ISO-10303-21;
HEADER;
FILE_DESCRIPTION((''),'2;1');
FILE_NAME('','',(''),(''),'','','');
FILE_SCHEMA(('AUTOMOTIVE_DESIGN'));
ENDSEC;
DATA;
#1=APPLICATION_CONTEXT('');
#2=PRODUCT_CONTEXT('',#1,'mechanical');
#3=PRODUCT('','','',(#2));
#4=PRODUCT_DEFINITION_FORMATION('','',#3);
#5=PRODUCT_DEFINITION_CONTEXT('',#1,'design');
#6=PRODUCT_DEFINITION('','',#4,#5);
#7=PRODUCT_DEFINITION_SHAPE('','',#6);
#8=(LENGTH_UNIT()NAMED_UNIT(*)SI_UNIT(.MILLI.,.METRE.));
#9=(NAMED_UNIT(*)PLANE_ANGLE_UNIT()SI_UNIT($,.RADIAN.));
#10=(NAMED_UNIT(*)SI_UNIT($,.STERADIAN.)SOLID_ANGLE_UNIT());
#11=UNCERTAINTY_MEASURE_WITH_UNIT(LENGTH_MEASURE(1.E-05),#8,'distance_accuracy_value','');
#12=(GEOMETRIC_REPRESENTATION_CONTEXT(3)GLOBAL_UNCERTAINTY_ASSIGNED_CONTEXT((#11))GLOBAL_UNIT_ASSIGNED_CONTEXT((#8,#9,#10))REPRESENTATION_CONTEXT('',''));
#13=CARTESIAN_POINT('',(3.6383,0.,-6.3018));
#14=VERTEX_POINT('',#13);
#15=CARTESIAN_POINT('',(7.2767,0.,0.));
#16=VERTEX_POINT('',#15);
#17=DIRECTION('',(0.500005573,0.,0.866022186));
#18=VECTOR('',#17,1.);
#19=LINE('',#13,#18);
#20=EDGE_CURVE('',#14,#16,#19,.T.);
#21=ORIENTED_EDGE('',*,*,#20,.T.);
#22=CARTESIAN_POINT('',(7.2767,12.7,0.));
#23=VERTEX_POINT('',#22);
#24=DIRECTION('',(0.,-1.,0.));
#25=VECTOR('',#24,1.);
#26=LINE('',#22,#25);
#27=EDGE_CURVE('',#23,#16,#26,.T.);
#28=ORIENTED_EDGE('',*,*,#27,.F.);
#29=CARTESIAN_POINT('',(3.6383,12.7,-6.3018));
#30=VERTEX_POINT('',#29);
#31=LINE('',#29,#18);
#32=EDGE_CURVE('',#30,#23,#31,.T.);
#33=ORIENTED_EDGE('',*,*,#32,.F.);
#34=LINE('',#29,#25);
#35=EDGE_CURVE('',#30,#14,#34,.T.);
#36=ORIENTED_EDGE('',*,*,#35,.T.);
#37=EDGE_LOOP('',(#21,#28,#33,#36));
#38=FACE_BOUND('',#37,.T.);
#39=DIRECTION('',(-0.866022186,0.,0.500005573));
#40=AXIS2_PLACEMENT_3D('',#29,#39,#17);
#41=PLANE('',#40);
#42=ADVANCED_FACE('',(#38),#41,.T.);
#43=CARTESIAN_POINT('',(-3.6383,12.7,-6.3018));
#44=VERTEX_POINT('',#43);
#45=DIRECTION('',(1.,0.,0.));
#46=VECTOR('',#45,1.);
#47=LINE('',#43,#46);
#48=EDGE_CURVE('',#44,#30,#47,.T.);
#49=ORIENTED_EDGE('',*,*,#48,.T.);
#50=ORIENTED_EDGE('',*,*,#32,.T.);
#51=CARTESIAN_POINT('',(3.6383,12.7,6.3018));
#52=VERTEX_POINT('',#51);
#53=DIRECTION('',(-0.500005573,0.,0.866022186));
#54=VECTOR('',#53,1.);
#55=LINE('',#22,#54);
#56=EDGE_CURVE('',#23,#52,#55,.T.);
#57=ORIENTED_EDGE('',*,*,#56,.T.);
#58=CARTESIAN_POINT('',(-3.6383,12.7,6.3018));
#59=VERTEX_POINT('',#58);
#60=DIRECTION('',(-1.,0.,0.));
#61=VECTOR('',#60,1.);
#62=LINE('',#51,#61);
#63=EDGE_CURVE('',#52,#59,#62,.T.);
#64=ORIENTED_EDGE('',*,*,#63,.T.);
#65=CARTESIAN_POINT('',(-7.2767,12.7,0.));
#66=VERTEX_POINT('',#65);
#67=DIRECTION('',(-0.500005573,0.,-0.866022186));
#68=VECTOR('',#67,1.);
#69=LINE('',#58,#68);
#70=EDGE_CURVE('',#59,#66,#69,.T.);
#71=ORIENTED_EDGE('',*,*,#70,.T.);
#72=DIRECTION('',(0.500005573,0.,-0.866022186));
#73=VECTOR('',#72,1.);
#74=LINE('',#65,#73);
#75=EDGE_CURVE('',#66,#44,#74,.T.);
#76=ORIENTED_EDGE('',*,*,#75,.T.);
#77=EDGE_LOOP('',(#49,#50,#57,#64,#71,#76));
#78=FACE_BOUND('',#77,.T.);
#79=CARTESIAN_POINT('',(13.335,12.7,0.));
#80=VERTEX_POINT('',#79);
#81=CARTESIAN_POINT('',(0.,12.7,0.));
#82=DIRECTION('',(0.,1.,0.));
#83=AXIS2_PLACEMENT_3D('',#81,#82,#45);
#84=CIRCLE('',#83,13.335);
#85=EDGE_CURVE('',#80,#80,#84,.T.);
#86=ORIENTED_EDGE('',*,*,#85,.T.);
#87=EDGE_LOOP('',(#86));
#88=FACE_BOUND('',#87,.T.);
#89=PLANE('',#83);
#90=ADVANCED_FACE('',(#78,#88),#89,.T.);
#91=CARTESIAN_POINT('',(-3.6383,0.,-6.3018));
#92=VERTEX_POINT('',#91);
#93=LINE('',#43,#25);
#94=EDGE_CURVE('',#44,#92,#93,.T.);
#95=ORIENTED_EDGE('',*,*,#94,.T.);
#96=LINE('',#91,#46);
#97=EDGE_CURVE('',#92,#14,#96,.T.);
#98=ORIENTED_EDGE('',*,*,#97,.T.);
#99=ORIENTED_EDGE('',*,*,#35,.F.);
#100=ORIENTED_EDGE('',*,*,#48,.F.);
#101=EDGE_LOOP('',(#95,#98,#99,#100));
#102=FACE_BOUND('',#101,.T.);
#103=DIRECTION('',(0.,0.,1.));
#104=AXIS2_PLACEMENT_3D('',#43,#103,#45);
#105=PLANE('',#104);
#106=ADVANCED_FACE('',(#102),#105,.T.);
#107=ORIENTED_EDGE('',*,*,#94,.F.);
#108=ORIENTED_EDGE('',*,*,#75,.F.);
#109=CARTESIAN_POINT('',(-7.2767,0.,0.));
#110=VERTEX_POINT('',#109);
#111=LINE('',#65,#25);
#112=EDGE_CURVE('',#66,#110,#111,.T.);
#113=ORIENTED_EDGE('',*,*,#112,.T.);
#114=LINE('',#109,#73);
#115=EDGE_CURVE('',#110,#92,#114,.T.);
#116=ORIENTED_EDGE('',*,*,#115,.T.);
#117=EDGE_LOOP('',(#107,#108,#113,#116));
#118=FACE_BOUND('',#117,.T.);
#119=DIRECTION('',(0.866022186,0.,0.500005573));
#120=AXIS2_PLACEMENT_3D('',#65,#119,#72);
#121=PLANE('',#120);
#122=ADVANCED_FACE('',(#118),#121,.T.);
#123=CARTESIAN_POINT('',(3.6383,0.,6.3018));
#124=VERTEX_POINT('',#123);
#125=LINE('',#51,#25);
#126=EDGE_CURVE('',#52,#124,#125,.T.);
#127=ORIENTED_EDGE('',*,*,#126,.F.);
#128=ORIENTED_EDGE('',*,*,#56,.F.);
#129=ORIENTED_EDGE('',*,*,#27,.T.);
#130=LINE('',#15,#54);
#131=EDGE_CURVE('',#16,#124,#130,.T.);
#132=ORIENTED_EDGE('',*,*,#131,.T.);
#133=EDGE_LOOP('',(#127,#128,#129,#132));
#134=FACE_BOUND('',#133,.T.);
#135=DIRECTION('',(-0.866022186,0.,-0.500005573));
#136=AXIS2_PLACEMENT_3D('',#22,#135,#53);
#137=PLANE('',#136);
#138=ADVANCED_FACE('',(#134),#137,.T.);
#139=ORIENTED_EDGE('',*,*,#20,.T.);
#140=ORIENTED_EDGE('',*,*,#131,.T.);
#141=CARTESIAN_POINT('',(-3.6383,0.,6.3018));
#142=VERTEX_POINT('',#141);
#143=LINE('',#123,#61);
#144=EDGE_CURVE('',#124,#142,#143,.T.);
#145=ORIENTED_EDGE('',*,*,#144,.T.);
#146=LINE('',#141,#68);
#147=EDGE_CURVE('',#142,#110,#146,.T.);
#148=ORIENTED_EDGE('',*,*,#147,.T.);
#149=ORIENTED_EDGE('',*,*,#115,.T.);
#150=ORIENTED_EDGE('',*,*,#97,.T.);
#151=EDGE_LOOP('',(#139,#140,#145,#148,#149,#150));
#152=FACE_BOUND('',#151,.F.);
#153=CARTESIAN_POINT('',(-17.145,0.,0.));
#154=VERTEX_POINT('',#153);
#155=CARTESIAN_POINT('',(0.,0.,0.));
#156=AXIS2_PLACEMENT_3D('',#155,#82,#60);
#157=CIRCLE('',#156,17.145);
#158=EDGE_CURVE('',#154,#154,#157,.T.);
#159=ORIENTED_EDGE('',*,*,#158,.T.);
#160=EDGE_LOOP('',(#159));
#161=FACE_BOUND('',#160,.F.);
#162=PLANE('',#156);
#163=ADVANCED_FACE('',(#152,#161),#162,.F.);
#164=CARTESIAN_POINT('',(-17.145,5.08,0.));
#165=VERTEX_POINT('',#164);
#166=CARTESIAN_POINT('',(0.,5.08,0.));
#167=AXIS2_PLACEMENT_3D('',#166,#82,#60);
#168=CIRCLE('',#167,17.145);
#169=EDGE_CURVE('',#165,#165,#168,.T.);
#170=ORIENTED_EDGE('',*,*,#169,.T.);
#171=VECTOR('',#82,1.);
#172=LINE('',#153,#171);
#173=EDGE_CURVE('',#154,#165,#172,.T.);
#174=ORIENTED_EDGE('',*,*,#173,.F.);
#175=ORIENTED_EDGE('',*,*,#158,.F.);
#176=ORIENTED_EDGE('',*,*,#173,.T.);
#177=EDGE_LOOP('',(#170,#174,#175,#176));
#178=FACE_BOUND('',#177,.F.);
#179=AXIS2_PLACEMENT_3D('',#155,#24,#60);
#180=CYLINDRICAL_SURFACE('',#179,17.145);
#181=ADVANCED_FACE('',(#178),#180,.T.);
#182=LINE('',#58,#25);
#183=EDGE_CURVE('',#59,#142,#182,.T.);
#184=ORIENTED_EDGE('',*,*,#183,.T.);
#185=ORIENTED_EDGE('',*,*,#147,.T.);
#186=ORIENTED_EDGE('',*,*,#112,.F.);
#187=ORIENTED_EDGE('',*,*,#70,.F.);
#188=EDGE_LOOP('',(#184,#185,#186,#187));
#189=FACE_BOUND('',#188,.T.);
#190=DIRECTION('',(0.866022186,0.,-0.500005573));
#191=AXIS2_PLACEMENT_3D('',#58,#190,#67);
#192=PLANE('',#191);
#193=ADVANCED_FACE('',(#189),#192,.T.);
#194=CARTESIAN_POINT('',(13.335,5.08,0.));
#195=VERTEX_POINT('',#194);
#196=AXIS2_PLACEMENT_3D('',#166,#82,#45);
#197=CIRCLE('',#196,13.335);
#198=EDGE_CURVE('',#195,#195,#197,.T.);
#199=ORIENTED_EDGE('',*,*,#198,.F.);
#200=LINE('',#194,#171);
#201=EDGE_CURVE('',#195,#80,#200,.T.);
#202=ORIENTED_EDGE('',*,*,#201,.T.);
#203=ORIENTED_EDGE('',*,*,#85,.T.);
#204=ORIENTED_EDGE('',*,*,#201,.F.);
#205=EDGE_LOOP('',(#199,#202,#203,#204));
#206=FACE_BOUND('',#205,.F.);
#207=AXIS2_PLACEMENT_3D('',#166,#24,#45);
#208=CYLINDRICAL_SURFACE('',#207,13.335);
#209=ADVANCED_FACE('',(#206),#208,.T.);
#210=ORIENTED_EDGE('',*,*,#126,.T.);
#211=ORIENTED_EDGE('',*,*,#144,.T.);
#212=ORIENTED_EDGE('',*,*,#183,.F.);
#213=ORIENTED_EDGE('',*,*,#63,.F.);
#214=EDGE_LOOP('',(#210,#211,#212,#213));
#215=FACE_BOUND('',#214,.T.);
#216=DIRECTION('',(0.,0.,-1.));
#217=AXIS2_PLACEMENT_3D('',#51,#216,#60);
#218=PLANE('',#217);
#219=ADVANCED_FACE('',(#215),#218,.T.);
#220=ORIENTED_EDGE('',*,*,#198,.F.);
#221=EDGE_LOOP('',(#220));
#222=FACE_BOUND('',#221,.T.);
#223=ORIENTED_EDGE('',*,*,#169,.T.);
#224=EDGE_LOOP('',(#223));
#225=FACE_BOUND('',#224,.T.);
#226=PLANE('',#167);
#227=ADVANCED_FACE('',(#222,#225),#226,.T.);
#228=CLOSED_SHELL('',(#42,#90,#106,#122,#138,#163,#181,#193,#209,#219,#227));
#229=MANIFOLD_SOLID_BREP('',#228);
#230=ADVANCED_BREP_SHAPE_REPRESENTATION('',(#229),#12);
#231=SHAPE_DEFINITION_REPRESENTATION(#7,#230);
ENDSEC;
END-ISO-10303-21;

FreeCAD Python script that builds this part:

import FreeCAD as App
import Part
import Sketcher

V = App.Vector
Q = App.Units.Quantity


def add_polygon(sketch, points):
    """Adds a closed chain of lines whose ends are joined by coincident constraints."""
    first, n = sketch.GeometryCount, len(points)
    for a, b in zip(points, points[1:] + points[:1]):
        sketch.addGeometry(Part.LineSegment(App.Vector(*a, 0), App.Vector(*b, 0)), False)
    for i in range(n):
        sketch.addConstraint(Sketcher.Constraint("Coincident", first + i, 2, first + (i + 1) % n, 1))

doc = App.newDocument("Part")
body = doc.addObject("PartDesign::Body", "Body")

sketch1 = body.newObject("Sketcher::SketchObject", "Sketch")
sketch1.AttachmentSupport = (doc.getObject("XZ_Plane"), [""])
sketch1.MapMode = "FlatFace"
sketch1.addGeometry(Part.Circle(V(0, 0, 0), V(0, 0, 1), 17.145), False)
sketch1.addConstraint([
    Sketcher.Constraint("Coincident", 0, 3, -1, 1),
    Sketcher.Constraint("Diameter", 0, Q("1.35 in")),
])
pad1 = body.newObject("PartDesign::Pad", "Pad")
pad1.Profile = sketch1
pad1.Length = Q("0.2 in")
pad1.Reversed = True

sketch2 = body.newObject("Sketcher::SketchObject", "Sketch001")
sketch2.AttachmentSupport = (doc.getObject("XZ_Plane"), [""])
sketch2.MapMode = "FlatFace"
sketch2.AttachmentOffset = App.Placement(V(0, 0, -0.2 * 25.4), App.Rotation())
sketch2.addGeometry(Part.Circle(V(0, 0, 0), V(0, 0, 1), 13.335), False)
sketch2.addConstraint([
    Sketcher.Constraint("Coincident", 0, 3, -1, 1),
    Sketcher.Constraint("Diameter", 0, Q("1.05 in")),
])
pad2 = body.newObject("PartDesign::Pad", "Pad001")
pad2.Profile = sketch2
pad2.Length = Q("0.3 in")
pad2.Reversed = True

sketch3 = body.newObject("Sketcher::SketchObject", "Sketch002")
sketch3.AttachmentSupport = (doc.getObject("XZ_Plane"), [""])
sketch3.MapMode = "FlatFace"
sketch3.AttachmentOffset = App.Placement(V(0, 0, -0.5 * 25.4), App.Rotation())
add_polygon(sketch3, [(-7.2767, 0), (-3.6383, 6.3018), (3.6383, 6.3018), (7.2767, 0), (3.6383, -6.3018), (-3.6383, -6.3018)])
sketch3.addConstraint([
    Sketcher.Constraint("Horizontal", 1),
    Sketcher.Constraint("Horizontal", 4),
    Sketcher.Constraint("Symmetric", 0, 2, 3, 2, -1, 1),
    Sketcher.Constraint("Symmetric", 2, 2, 5, 2, -1, 1),
    Sketcher.Constraint("PointOnObject", 2, 2, -1),
    Sketcher.Constraint("Parallel", 2, 5),
    Sketcher.Constraint("Vertical", 1, 2, 3, 2),
    Sketcher.Constraint("Angle", 0, Q("59.9996 deg")),
    Sketcher.Constraint("DistanceX", 1, 1, 1, 2, 7.2766),
    Sketcher.Constraint("DistanceY", -1, 1, 0, 2, Q("0.2481 in")),
])
pocket1 = body.newObject("PartDesign::Pocket", "Pocket")
pocket1.Profile = sketch3
pocket1.Length = Q("0.5 in")
pocket1.Reversed = True

doc.recompute()
